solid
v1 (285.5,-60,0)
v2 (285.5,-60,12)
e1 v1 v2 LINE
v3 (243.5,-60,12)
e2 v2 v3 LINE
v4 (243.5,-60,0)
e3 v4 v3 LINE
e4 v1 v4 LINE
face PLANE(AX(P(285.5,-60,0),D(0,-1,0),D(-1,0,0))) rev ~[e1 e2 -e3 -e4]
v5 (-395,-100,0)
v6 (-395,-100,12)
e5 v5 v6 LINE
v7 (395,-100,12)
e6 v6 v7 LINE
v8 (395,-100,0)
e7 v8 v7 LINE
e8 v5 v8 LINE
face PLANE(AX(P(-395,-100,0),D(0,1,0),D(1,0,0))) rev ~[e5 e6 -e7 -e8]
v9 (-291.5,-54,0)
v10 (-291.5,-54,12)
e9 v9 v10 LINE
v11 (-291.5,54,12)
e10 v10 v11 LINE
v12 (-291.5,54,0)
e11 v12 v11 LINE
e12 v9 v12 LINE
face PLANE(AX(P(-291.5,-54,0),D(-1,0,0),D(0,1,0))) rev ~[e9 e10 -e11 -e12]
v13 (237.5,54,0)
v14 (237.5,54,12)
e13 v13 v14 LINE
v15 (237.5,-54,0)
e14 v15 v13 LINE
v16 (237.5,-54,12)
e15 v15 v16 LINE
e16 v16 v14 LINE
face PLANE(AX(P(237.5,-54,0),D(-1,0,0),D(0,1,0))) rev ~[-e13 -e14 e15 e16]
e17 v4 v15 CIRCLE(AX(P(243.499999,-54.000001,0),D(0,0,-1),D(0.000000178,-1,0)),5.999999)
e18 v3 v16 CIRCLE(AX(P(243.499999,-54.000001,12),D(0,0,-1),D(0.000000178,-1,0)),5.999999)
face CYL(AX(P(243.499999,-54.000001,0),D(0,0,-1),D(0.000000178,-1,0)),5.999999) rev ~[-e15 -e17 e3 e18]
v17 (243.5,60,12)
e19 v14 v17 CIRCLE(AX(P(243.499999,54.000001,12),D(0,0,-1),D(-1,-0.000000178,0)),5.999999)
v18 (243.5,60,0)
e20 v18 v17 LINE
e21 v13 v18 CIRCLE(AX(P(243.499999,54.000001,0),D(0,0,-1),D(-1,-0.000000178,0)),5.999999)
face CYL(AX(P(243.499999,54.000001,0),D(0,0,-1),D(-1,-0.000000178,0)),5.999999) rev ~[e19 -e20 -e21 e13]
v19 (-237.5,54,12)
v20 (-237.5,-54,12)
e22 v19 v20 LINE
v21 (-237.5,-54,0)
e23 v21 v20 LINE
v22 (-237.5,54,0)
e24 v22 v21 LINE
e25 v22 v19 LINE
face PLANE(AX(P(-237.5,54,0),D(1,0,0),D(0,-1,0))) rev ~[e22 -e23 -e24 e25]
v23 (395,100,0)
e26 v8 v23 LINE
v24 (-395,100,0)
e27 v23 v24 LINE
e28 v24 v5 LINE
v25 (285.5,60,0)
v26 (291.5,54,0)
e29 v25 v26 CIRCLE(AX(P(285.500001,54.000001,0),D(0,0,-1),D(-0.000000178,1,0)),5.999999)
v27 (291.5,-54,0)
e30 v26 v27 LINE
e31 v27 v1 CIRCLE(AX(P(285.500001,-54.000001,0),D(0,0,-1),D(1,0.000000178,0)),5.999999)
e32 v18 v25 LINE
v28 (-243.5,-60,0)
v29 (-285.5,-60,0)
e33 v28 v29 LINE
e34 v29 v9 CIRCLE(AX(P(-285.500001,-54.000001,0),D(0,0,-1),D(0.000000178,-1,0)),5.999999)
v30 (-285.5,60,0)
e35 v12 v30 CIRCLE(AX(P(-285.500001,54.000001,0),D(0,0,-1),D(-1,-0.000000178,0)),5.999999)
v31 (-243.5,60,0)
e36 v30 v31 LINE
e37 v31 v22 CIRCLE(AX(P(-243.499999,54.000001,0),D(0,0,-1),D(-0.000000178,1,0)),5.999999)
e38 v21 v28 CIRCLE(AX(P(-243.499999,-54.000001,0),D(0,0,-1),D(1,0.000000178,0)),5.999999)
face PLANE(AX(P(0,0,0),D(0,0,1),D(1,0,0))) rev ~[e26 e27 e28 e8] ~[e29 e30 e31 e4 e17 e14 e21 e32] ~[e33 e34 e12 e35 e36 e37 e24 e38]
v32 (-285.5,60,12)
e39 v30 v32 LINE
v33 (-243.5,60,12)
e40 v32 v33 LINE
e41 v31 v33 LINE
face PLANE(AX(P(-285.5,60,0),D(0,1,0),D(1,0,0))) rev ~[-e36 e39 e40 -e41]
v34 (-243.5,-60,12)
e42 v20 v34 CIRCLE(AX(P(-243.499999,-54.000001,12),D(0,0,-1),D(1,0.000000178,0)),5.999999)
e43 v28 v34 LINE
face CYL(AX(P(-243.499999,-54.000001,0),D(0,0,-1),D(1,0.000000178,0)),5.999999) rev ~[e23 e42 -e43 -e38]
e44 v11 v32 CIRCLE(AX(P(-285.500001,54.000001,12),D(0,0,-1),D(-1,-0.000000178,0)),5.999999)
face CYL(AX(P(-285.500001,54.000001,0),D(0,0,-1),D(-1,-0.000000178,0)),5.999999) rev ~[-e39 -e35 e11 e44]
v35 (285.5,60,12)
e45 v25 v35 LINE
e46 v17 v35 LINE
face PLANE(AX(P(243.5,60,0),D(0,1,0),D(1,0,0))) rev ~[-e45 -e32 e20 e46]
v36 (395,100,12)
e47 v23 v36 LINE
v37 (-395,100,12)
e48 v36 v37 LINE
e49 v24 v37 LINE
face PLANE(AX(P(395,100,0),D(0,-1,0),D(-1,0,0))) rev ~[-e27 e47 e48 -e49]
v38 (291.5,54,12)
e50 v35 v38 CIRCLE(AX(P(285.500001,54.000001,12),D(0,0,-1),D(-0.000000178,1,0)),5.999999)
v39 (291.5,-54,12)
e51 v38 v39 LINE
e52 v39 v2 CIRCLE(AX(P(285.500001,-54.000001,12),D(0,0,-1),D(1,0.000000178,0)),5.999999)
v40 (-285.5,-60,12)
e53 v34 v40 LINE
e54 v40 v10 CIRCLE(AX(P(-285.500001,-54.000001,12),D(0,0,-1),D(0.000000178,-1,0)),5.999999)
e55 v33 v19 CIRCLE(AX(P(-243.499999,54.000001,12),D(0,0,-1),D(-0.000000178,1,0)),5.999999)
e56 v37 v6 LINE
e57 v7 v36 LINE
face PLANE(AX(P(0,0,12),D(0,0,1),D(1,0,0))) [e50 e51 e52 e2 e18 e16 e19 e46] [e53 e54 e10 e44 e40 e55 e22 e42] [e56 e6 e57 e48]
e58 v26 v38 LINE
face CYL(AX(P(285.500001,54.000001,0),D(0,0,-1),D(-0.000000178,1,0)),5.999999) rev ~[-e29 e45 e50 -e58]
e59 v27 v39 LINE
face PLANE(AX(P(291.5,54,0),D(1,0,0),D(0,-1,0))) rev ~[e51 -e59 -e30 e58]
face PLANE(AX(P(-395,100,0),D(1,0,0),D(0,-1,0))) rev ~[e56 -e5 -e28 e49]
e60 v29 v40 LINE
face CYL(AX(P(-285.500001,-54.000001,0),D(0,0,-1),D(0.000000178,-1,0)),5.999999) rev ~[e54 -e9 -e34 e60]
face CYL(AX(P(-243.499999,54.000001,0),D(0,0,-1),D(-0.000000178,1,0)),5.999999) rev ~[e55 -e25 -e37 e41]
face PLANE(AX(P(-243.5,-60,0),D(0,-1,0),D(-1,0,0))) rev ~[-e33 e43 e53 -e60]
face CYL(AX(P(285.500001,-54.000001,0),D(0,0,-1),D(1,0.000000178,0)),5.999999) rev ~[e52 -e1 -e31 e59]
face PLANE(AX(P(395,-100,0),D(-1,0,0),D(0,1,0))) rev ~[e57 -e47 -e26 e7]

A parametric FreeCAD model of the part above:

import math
import FreeCAD as App
import Part
import Sketcher

doc = App.newDocument("Part")
params = doc.addObject("Spreadsheet::Sheet", "Params")
for row, (alias, value) in enumerate([
    ("sketch1_radius", "5.999999 mm"),
    ("sketch1_width", "790 mm"),
    ("sketch1_width2", "42 mm"),
    ("sketch1_height", "200 mm"),
    ("sketch1_height2", "108 mm"),
    ("pad1_length", "12 mm"),
], start=1):
    params.set(f"A{row}", alias)
    params.set(f"B{row}", "=" + value)
    params.setAlias(f"B{row}", alias)

body = doc.addObject("PartDesign::Body", "Body")

# Sketch on XY plane
sketch1 = body.newObject("Sketcher::SketchObject", "Sketch")
sketch1.AttachmentSupport = (doc.getObject("XY_Plane"), [""])
sketch1.MapMode = "FlatFace"
sketch1.addGeometry([
    Part.LineSegment(App.Vector(395, 100, 0), App.Vector(-395, 100, 0)),  # 0
    Part.LineSegment(App.Vector(-395, 100, 0), App.Vector(-395, -100, 0)),  # 1
    Part.LineSegment(App.Vector(-395, -100, 0), App.Vector(395, -100, 0)),  # 2
    Part.LineSegment(App.Vector(395, -100, 0), App.Vector(395, 100, 0)),  # 3
    Part.ArcOfCircle(Part.Circle(App.Vector(-285.500001, 54.000001, 0), App.Vector(0, 0, 1), 5.999999), math.radians(89.99999), math.radians(180.00001)),  # 4
    Part.LineSegment(App.Vector(-285.5, 60, 0), App.Vector(-243.5, 60, 0)),  # 5
    Part.ArcOfCircle(Part.Circle(App.Vector(-243.499999, 54.000001, 0), App.Vector(0, 0, 1), 5.999999), math.radians(-0.00001), math.radians(90.00001)),  # 6
    Part.LineSegment(App.Vector(-237.5, 54, 0), App.Vector(-237.5, -54, 0)),  # 7
    Part.ArcOfCircle(Part.Circle(App.Vector(-243.499999, -54.000001, 0), App.Vector(0, 0, 1), 5.999999), math.radians(-90.00001), math.radians(0.00001)),  # 8
    Part.LineSegment(App.Vector(-243.5, -60, 0), App.Vector(-285.5, -60, 0)),  # 9
    Part.ArcOfCircle(Part.Circle(App.Vector(-285.500001, -54.000001, 0), App.Vector(0, 0, 1), 5.999999), math.radians(179.99999), math.radians(270.00001)),  # 10
    Part.LineSegment(App.Vector(-291.5, -54, 0), App.Vector(-291.5, 54, 0)),  # 11
    Part.LineSegment(App.Vector(237.5, -54, 0), App.Vector(237.5, 54, 0)),  # 12
    Part.ArcOfCircle(Part.Circle(App.Vector(243.499999, 54.000001, 0), App.Vector(0, 0, 1), 5.999999), math.radians(89.99999), math.radians(180.00001)),  # 13
    Part.LineSegment(App.Vector(243.5, 60, 0), App.Vector(285.5, 60, 0)),  # 14
    Part.ArcOfCircle(Part.Circle(App.Vector(285.500001, 54.000001, 0), App.Vector(0, 0, 1), 5.999999), math.radians(-0.00001), math.radians(90.00001)),  # 15
    Part.LineSegment(App.Vector(291.5, 54, 0), App.Vector(291.5, -54, 0)),  # 16
    Part.ArcOfCircle(Part.Circle(App.Vector(285.500001, -54.000001, 0), App.Vector(0, 0, 1), 5.999999), math.radians(-90.00001), math.radians(0.00001)),  # 17
    Part.LineSegment(App.Vector(285.5, -60, 0), App.Vector(243.5, -60, 0)),  # 18
    Part.ArcOfCircle(Part.Circle(App.Vector(243.499999, -54.000001, 0), App.Vector(0, 0, 1), 5.999999), math.radians(179.99999), math.radians(270.00001)),  # 19
], False)
sketch1.addConstraint([
    Sketcher.Constraint("Coincident", 0, 2, 1, 1),
    Sketcher.Constraint("Coincident", 1, 2, 2, 1),
    Sketcher.Constraint("Coincident", 2, 2, 3, 1),
    Sketcher.Constraint("Coincident", 3, 2, 0, 1),
    Sketcher.Constraint("Tangent", 4, 1, 5, 1),
    Sketcher.Constraint("Tangent", 5, 2, 6, 2),
    Sketcher.Constraint("Tangent", 6, 1, 7, 1),
    Sketcher.Constraint("Tangent", 7, 2, 8, 2),
    Sketcher.Constraint("Tangent", 8, 1, 9, 1),
    Sketcher.Constraint("Tangent", 9, 2, 10, 2),
    Sketcher.Constraint("Tangent", 10, 1, 11, 1),
    Sketcher.Constraint("Tangent", 11, 2, 4, 2),
    Sketcher.Constraint("Tangent", 12, 2, 13, 2),
    Sketcher.Constraint("Tangent", 13, 1, 14, 1),
    Sketcher.Constraint("Tangent", 14, 2, 15, 2),
    Sketcher.Constraint("Tangent", 15, 1, 16, 1),
    Sketcher.Constraint("Tangent", 16, 2, 17, 2),
    Sketcher.Constraint("Tangent", 17, 1, 18, 1),
    Sketcher.Constraint("Tangent", 18, 2, 19, 2),
    Sketcher.Constraint("Tangent", 19, 1, 12, 1),
    Sketcher.Constraint("Horizontal", 0),
    Sketcher.Constraint("Vertical", 1),
    Sketcher.Constraint("Horizontal", 2),
    Sketcher.Constraint("Vertical", 3),
    Sketcher.Constraint("Horizontal", 5),
    Sketcher.Constraint("Vertical", 7),
    Sketcher.Constraint("Horizontal", 9),
    Sketcher.Constraint("Vertical", 11),
    Sketcher.Constraint("Vertical", 12),
    Sketcher.Constraint("Horizontal", 14),
    Sketcher.Constraint("Vertical", 16),
    Sketcher.Constraint("Horizontal", 18),
    Sketcher.Constraint("Equal", 4, 6),
    Sketcher.Constraint("Equal", 6, 8),
    Sketcher.Constraint("Equal", 8, 10),
    Sketcher.Constraint("Equal", 10, 13),
    Sketcher.Constraint("Equal", 13, 15),
    Sketcher.Constraint("Equal", 15, 17),
    Sketcher.Constraint("Equal", 17, 19),
    Sketcher.Constraint("Symmetric", 8, 3, 13, 3, -1, 1),
    Sketcher.Constraint("Symmetric", 4, 3, 17, 3, -1, 1),
    Sketcher.Constraint("Symmetric", 0, 2, 2, 2, -1, 1),
    Sketcher.Constraint("Horizontal", 6, 3, 13, 3),
    Sketcher.Constraint("Radius", 4, 5.999999),
    Sketcher.Constraint("DistanceX", 0, 2, 0, 1, 790.0),
    Sketcher.Constraint("DistanceX", 5, 1, 5, 2, 42.0),
    Sketcher.Constraint("DistanceY", 1, 2, 1, 1, 200.0),
    Sketcher.Constraint("DistanceY", 7, 2, 7, 1, 108.0),
    Sketcher.Constraint("DistanceX", 4, 3, 13, 3, 529.0),
])
sketch1.setExpression("Constraints[43]", "Params.sketch1_radius")
sketch1.setExpression("Constraints[44]", "Params.sketch1_width")
sketch1.setExpression("Constraints[45]", "Params.sketch1_width2")
sketch1.setExpression("Constraints[46]", "Params.sketch1_height")
sketch1.setExpression("Constraints[47]", "Params.sketch1_height2")
pad1 = body.newObject("PartDesign::Pad", "Pad")
pad1.Profile = sketch1
pad1.setExpression("Length", "Params.pad1_length")

doc.recompute()
